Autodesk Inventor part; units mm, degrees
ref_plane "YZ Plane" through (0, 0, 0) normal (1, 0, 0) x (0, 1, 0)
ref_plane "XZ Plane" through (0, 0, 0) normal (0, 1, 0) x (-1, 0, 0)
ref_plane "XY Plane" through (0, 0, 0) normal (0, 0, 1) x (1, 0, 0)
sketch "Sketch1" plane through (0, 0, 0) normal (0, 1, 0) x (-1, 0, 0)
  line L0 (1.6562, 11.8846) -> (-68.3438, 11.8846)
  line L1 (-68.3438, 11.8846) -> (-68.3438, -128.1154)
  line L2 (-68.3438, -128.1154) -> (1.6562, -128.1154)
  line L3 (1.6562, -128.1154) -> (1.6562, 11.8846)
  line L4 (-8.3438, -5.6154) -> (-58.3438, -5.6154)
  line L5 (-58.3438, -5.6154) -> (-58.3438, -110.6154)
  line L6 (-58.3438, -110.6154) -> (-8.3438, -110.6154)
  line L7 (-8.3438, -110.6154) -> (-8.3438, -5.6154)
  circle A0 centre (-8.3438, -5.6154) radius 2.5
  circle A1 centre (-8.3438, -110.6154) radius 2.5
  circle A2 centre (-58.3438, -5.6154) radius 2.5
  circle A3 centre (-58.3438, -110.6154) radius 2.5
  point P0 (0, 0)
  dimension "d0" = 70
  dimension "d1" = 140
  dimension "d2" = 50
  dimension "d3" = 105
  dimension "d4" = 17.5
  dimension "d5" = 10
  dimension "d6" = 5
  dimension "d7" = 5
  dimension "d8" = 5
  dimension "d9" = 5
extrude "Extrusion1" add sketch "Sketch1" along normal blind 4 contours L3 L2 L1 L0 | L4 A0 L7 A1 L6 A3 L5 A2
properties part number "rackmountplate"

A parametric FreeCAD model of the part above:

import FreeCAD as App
import Part
import Sketcher
from FreeCAD import Vector

doc = App.newDocument("Part")
body = doc.addObject("PartDesign::Body", "Body")

# Sketch on XZ plane
sketch1 = doc.addObject("Sketcher::SketchObject", "Sketch")
body.addObject(sketch1)
sketch1.AttachmentSupport = (doc.XZ_Plane, [""])
sketch1.MapMode = "FlatFace"
sketch1.addGeometry([
    Part.LineSegment(Vector(-1.7, -128.1, 0), Vector(-1.7, 11.9, 0)),  # 0
    Part.LineSegment(Vector(-1.7, 11.9, 0), Vector(68.3, 11.9, 0)),  # 1
    Part.LineSegment(Vector(68.3, 11.9, 0), Vector(68.3, -128.1, 0)),  # 2
    Part.LineSegment(Vector(68.3, -128.1, 0), Vector(-1.7, -128.1, 0)),  # 3
    Part.Circle(Vector(58.3, -5.6, 0), Vector(0, 0, 1), 2.5),  # 4
    Part.Circle(Vector(58.3, -110.6, 0), Vector(0, 0, 1), 2.5),  # 5
    Part.Circle(Vector(8.3, -110.6, 0), Vector(0, 0, 1), 2.5),  # 6
    Part.Circle(Vector(8.3, -5.6, 0), Vector(0, 0, 1), 2.5),  # 7
], False)
sketch1.addConstraint([
    Sketcher.Constraint("Coincident", 0, 2, 1, 1),
    Sketcher.Constraint("Coincident", 1, 2, 2, 1),
    Sketcher.Constraint("Coincident", 2, 2, 3, 1),
    Sketcher.Constraint("Coincident", 3, 2, 0, 1),
    Sketcher.Constraint("Vertical", 0),
    Sketcher.Constraint("Horizontal", 1),
    Sketcher.Constraint("Vertical", 2),
    Sketcher.Constraint("Horizontal", 3),
    Sketcher.Constraint("Equal", 4, 5),
    Sketcher.Constraint("Equal", 5, 6),
    Sketcher.Constraint("Equal", 6, 7),
    Sketcher.Constraint("Horizontal", 5, 3, 6, 3),
    Sketcher.Constraint("Horizontal", 4, 3, 7, 3),
    Sketcher.Constraint("Vertical", 4, 3, 5, 3),
    Sketcher.Constraint("Vertical", 6, 3, 7, 3),
    Sketcher.Constraint("Diameter", 4, 5.0),
    Sketcher.Constraint("DistanceX", 1, 1, 1, 2, 70.0),
    Sketcher.Constraint("DistanceY", 0, 1, 0, 2, 140.0),
    Sketcher.Constraint("DistanceY", 5, 3, 4, 3, 105.0),
    Sketcher.Constraint("DistanceX", 6, 3, 5, 3, 50.0),
    Sketcher.Constraint("DistanceX", 0, 2, 7, 3, 10.0),
    Sketcher.Constraint("DistanceY", 7, 3, 0, 2, 17.5),
    Sketcher.Constraint("DistanceX", -1, 1, 4, 3, 58.3438),
    Sketcher.Constraint("DistanceY", 4, 3, -1, 1, 5.6154),
])
pad1 = doc.addObject("PartDesign::Pad", "Pad")
body.addObject(pad1)
pad1.Profile = sketch1
pad1.Length = 4
pad1.Reversed = True

doc.recompute()
